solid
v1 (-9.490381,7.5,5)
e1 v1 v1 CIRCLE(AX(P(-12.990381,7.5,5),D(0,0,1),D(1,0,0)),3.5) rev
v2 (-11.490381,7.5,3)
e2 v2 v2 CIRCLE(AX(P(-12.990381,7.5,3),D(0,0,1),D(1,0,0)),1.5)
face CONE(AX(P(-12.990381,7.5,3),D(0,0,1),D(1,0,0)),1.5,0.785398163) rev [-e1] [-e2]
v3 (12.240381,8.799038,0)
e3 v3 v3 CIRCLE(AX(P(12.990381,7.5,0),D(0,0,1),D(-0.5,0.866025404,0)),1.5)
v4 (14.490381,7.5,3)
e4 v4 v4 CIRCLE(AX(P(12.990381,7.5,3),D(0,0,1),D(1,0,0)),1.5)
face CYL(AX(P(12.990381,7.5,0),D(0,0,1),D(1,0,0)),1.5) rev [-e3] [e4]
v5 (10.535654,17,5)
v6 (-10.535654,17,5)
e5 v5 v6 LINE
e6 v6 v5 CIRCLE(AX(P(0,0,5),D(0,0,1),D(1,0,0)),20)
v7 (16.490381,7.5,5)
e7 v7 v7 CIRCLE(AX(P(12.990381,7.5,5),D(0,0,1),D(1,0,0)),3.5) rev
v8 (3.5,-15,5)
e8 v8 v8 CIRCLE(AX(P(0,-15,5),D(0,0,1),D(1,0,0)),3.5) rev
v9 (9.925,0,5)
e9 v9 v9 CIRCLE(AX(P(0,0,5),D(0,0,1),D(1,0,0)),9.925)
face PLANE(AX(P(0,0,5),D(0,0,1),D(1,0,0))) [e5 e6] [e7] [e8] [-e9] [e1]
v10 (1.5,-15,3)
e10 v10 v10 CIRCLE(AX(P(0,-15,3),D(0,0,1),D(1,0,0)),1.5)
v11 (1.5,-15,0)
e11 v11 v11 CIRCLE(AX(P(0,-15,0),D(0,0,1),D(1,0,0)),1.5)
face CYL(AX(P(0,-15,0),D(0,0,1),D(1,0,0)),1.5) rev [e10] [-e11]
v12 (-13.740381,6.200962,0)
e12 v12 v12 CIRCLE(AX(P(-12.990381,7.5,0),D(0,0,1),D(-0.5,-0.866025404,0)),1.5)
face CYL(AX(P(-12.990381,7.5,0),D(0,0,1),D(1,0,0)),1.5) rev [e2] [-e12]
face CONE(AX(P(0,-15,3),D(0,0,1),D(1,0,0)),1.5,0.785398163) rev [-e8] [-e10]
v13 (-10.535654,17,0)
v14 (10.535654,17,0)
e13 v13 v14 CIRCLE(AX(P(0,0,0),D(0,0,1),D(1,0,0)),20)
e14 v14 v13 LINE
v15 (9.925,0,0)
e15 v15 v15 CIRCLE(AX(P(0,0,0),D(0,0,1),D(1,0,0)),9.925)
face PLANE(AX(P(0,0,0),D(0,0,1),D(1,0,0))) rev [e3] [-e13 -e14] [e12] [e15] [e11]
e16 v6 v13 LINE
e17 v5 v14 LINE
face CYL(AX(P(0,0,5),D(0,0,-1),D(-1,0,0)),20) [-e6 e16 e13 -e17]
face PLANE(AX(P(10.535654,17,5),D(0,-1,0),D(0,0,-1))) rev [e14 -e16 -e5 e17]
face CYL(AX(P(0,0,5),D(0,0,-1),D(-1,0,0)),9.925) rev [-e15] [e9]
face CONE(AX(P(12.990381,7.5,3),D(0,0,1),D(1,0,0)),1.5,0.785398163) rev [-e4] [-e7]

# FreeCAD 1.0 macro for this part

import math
import FreeCAD as App
import Part
import Sketcher

V = App.Vector


def edges_at(feature, points):
    """Names of the edges that pass closest to the given points."""
    edges = feature.Shape.Edges
    near = lambda p: min(range(len(edges)), key=lambda i: edges[i].distToShape(Part.Vertex(*p))[0])
    return sorted({f"Edge{near(p) + 1}" for p in points})

doc = App.newDocument("Part")
body = doc.addObject("PartDesign::Body", "Body")

# Sketch on XY plane
sketch1 = body.newObject("Sketcher::SketchObject", "Sketch")
sketch1.AttachmentSupport = (doc.getObject("XY_Plane"), [""])
sketch1.MapMode = "FlatFace"
sketch1.addGeometry([
    Part.LineSegment(V(11, 17, 0), V(-11, 17, 0)),
    Part.ArcOfCircle(Part.Circle(V(0, 0, 0), V(0, 0, 1), 20), math.radians(122), math.radians(418)),
    Part.Circle(V(0, 0, 0), V(0, 0, 1), 10),
], False)
sketch1.addConstraint([
    Sketcher.Constraint("Coincident", 0, 1, 1, 2),
    Sketcher.Constraint("Coincident", 1, 1, 0, 2),
    Sketcher.Constraint("Horizontal", 0),
    Sketcher.Constraint("Coincident", 1, 3, -1, 1),
    Sketcher.Constraint("Coincident", 2, 3, -1, 1),
    Sketcher.Constraint("Radius", 1, 20.0),
    Sketcher.Constraint("Diameter", 2, 19.85),
    Sketcher.Constraint("DistanceY", -1, 1, 0, 1, 17.0),
])
pad1 = body.newObject("PartDesign::Pad", "Pad")
pad1.Profile = sketch1
pad1.Length = 5

# Sketch on XY plane
sketch2 = body.newObject("Sketcher::SketchObject", "Sketch001")
sketch2.AttachmentSupport = (doc.getObject("XY_Plane"), [""])
sketch2.MapMode = "FlatFace"
sketch2.AttachmentOffset = App.Placement(V(0, 0, 5), App.Rotation())
sketch2.addGeometry(Part.Circle(V(0, -15, 0), V(0, 0, 1), 1.5), False)
sketch2.addConstraint([
    Sketcher.Constraint("PointOnObject", 0, 3, -2),
    Sketcher.Constraint("Diameter", 0, 3.0),
    Sketcher.Constraint("DistanceY", 0, 3, -1, 1, 15.0),
])
pocket1 = body.newObject("PartDesign::Pocket", "Pocket")
pocket1.Profile = sketch2
pocket1.Type = "ThroughAll"
doc.recompute()

polarpattern = body.newObject("PartDesign::PolarPattern", "PolarPattern")
polarpattern.Originals = [pocket1]
polarpattern.Axis = (doc.getObject("Z_Axis"), [""])
polarpattern.Angle = 360
polarpattern.Occurrences = 3
body.Tip = polarpattern
doc.recompute()

chamfer = body.newObject("PartDesign::Chamfer", "Chamfer")
chamfer.Base = (polarpattern, edges_at(polarpattern, [(-1.5, -15, 5), (13.74, 6.201, 5), (-12.24, 8.799, 5)]))
chamfer.Size = 2

doc.recompute()
